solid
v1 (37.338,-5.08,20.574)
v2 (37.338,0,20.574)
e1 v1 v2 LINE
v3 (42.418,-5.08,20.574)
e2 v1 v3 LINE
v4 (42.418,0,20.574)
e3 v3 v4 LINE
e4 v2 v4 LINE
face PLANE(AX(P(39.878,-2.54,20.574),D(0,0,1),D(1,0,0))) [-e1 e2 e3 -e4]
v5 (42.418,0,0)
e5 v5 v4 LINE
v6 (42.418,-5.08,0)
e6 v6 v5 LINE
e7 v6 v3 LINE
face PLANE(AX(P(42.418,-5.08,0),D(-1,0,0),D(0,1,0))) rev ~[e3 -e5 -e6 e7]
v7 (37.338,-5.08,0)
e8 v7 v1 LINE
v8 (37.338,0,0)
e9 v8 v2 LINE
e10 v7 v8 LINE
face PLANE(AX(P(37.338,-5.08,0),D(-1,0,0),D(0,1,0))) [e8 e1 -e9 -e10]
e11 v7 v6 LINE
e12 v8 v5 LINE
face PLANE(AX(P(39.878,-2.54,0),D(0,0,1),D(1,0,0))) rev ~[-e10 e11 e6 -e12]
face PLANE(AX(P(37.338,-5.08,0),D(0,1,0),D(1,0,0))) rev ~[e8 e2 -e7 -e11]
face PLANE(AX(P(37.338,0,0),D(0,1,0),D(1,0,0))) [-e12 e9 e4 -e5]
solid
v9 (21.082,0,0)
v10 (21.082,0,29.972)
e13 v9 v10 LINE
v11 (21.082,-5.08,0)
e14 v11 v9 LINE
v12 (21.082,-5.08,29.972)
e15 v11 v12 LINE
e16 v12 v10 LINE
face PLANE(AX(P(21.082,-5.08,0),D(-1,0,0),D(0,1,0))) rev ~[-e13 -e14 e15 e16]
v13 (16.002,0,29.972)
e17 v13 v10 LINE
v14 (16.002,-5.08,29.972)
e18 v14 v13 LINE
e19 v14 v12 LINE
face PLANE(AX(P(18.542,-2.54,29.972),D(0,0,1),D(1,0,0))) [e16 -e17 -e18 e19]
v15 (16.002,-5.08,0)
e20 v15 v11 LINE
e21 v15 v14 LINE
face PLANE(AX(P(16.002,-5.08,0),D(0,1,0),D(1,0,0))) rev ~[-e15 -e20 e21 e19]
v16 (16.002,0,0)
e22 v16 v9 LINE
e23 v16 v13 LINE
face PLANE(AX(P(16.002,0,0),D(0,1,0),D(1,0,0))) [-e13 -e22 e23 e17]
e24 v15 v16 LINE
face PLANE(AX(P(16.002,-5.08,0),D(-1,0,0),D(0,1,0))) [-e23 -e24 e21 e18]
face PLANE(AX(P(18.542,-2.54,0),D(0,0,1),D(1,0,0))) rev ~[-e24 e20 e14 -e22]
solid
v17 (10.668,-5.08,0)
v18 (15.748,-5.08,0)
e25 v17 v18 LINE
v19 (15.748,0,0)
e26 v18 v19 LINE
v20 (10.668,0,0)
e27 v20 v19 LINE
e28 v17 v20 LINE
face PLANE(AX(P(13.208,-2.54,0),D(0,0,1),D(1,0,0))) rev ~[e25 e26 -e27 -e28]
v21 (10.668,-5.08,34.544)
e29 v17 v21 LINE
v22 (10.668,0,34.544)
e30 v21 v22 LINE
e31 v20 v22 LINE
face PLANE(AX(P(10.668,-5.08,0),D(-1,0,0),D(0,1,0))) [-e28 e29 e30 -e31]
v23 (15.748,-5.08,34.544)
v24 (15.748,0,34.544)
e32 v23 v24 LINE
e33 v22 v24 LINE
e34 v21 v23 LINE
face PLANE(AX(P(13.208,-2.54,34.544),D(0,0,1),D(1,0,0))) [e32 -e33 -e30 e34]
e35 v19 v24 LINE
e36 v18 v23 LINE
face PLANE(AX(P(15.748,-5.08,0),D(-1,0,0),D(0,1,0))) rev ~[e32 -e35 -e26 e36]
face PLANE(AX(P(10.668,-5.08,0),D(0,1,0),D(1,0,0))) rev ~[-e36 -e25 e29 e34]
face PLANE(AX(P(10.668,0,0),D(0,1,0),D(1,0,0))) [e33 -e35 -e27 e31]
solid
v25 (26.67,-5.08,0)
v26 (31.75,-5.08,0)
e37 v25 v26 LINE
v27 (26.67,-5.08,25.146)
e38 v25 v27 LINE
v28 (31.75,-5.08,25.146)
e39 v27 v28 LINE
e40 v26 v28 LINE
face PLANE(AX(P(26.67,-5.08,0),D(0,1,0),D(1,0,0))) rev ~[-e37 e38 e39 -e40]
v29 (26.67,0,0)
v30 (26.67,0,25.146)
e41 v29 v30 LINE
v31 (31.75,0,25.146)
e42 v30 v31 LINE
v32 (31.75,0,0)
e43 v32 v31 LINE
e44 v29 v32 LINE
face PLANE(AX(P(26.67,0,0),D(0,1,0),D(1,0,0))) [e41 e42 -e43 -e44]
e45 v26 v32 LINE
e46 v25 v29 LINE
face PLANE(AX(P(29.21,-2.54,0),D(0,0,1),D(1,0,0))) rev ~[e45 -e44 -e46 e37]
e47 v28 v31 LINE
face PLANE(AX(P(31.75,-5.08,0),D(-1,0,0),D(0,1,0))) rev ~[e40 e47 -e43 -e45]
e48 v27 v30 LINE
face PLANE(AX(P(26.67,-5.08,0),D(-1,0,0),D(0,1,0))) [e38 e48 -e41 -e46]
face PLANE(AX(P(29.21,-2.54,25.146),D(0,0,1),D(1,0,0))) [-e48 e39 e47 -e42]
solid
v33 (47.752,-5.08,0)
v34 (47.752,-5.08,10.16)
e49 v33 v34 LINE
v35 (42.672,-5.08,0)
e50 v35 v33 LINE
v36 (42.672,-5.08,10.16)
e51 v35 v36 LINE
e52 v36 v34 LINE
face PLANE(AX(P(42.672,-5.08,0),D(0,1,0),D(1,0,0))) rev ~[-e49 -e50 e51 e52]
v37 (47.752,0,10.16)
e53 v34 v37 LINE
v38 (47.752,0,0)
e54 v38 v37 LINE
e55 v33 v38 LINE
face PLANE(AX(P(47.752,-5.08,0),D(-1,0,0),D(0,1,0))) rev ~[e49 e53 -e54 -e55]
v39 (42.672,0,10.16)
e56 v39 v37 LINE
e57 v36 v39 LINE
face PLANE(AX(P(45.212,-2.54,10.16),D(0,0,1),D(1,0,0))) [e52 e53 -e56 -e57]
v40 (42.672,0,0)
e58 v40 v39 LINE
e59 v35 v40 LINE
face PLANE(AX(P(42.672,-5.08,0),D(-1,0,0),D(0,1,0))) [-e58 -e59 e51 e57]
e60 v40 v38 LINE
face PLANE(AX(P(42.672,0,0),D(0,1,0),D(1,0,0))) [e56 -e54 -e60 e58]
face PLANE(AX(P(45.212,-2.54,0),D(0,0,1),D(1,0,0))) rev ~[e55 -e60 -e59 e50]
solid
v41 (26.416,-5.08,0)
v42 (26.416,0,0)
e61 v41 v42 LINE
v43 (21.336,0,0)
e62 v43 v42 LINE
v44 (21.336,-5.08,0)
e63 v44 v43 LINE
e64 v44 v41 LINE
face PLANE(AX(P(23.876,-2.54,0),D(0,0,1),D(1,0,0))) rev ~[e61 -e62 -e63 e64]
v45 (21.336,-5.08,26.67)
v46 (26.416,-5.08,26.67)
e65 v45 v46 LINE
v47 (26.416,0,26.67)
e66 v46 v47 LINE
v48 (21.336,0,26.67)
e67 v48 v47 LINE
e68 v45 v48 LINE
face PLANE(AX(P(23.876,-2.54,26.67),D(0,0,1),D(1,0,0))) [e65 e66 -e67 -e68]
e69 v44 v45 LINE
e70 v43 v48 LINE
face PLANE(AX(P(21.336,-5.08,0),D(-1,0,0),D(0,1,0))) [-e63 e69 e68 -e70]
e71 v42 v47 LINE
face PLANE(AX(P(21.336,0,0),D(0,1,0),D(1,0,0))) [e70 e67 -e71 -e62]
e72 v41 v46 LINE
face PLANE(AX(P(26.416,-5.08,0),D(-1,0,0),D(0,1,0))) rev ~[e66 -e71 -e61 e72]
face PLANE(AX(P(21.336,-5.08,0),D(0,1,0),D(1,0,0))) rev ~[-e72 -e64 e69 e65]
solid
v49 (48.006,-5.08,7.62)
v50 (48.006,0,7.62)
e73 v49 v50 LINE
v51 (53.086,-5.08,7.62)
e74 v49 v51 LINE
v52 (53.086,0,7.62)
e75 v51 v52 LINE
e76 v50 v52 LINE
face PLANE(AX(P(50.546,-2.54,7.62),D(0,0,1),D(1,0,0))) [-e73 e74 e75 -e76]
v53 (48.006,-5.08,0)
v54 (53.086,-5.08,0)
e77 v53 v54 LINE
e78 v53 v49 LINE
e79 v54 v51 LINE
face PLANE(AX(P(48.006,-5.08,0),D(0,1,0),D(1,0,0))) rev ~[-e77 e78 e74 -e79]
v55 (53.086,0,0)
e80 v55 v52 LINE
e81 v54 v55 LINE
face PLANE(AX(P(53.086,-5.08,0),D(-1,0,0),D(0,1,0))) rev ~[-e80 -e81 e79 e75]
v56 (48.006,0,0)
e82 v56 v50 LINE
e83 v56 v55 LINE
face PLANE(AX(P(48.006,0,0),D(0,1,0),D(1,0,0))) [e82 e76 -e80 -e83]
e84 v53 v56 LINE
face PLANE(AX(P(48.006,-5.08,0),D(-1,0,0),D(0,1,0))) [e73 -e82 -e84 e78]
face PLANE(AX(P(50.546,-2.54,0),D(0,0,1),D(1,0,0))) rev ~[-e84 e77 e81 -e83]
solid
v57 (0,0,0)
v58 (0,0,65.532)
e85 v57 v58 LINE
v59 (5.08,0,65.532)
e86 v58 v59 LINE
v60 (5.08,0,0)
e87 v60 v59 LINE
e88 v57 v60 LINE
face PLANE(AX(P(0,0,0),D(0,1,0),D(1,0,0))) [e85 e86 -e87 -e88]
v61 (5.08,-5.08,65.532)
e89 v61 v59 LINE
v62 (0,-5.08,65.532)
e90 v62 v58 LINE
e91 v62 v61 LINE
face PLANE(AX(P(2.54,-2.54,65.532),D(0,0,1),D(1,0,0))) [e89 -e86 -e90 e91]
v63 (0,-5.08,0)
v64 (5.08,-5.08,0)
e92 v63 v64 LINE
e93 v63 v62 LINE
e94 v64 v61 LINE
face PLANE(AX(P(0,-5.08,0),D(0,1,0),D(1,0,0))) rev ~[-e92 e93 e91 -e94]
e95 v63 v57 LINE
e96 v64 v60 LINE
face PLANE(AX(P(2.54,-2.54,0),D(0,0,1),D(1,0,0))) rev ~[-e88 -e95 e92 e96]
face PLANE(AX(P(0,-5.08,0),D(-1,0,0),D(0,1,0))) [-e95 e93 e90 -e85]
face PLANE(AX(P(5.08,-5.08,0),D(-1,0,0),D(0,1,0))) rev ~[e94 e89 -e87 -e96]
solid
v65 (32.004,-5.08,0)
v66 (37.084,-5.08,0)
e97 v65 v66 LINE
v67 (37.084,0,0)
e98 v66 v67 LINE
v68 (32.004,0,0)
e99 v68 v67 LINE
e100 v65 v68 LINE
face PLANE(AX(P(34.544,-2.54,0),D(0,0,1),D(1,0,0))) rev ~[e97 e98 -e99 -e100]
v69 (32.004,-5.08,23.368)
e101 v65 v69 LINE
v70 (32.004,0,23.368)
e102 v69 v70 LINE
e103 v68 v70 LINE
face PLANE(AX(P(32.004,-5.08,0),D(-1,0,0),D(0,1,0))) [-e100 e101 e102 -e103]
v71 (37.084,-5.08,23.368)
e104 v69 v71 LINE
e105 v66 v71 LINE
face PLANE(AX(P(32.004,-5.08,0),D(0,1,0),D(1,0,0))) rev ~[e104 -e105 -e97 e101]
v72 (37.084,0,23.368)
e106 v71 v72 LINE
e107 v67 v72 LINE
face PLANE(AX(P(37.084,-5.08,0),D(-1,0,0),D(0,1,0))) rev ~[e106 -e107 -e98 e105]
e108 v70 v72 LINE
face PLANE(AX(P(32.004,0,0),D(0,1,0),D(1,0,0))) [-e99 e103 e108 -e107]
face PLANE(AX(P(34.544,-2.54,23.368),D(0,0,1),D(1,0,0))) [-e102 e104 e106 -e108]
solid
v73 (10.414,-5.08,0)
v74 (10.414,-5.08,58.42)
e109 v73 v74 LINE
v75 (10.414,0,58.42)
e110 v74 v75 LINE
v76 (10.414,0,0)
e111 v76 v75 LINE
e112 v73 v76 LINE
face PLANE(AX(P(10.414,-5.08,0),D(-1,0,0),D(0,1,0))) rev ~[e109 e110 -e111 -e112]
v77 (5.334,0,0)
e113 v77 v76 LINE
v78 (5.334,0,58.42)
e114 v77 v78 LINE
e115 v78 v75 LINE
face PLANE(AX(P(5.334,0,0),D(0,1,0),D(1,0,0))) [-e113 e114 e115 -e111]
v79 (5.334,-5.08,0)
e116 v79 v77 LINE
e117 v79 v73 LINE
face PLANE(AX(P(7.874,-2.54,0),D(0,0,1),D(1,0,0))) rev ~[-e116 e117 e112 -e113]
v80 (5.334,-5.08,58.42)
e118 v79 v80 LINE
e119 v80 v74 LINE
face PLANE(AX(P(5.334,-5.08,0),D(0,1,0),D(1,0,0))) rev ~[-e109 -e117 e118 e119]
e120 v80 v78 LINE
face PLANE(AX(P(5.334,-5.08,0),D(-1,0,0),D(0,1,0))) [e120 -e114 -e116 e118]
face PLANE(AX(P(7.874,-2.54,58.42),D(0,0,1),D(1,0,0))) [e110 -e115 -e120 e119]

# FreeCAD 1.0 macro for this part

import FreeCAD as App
import Part
import Sketcher
from FreeCAD import Vector
Q = App.Units.Quantity


def add_polygon(sketch, points):
    """Adds a closed chain of lines whose ends are joined by coincident constraints."""
    first, n = sketch.GeometryCount, len(points)
    for a, b in zip(points, points[1:] + points[:1]):
        sketch.addGeometry(Part.LineSegment(App.Vector(*a, 0), App.Vector(*b, 0)), False)
    for i in range(n):
        sketch.addConstraint(Sketcher.Constraint("Coincident", first + i, 2, first + (i + 1) % n, 1))

doc = App.newDocument("Part")
body = doc.addObject("PartDesign::Body", "Body")

sketch1 = body.newObject("Sketcher::SketchObject", "Sketch")
sketch1.AttachmentSupport = (doc.getObject("XY_Plane"), [""])
sketch1.MapMode = "FlatFace"
add_polygon(sketch1, [(0, 0), (0, -5), (5, -5), (5, 0)])
sketch1.addConstraint([
    Sketcher.Constraint("Vertical", 0),
    Sketcher.Constraint("Horizontal", 1),
    Sketcher.Constraint("Vertical", 2),
    Sketcher.Constraint("Horizontal", 3),
    Sketcher.Constraint("Coincident", 3, 2, -1, 1),
    Sketcher.Constraint("Equal", 3, 0),
    Sketcher.Constraint("DistanceX", 1, 1, 1, 2, Q("0.2 in")),
])
pad1 = body.newObject("PartDesign::Pad", "Pad")
pad1.Profile = sketch1
pad1.Length = Q("2.58 in")
body2 = doc.addObject("PartDesign::Body", "Body001")

sketch2 = body2.newObject("Sketcher::SketchObject", "Sketch001")
sketch2.AttachmentSupport = (doc.getObject("XY_Plane001"), [""])
sketch2.MapMode = "FlatFace"
add_polygon(sketch2, [(5, 0), (5, -5), (10, -5), (10, 0)])
sketch2.addConstraint([
    Sketcher.Constraint("Vertical", 0),
    Sketcher.Constraint("Horizontal", 1),
    Sketcher.Constraint("Vertical", 2),
    Sketcher.Constraint("Horizontal", 3),
    Sketcher.Constraint("PointOnObject", 2, 2, -1),
    Sketcher.Constraint("Equal", 3, 0),
    Sketcher.Constraint("DistanceX", 1, 1, 1, 2, Q("0.2 in")),
    Sketcher.Constraint("DistanceX", -1, 1, 0, 2, Q("0.21 in")),
])
pad2 = body2.newObject("PartDesign::Pad", "Pad001")
pad2.Profile = sketch2
pad2.Length = Q("2.3 in")
body3 = doc.addObject("PartDesign::Body", "Body002")

sketch3 = body3.newObject("Sketcher::SketchObject", "Sketch002")
sketch3.AttachmentSupport = (doc.getObject("XY_Plane002"), [""])
sketch3.MapMode = "FlatFace"
add_polygon(sketch3, [(11, 0), (11, -5), (16, -5), (16, 0)])
sketch3.addConstraint([
    Sketcher.Constraint("Vertical", 0),
    Sketcher.Constraint("Horizontal", 1),
    Sketcher.Constraint("Vertical", 2),
    Sketcher.Constraint("Horizontal", 3),
    Sketcher.Constraint("PointOnObject", 2, 2, -1),
    Sketcher.Constraint("Equal", 3, 0),
    Sketcher.Constraint("DistanceX", 1, 1, 1, 2, Q("0.2 in")),
    Sketcher.Constraint("DistanceX", -1, 1, 0, 2, Q("0.42 in")),
])
pad3 = body3.newObject("PartDesign::Pad", "Pad002")
pad3.Profile = sketch3
pad3.Length = Q("1.36 in")
body4 = doc.addObject("PartDesign::Body", "Body003")

sketch4 = body4.newObject("Sketcher::SketchObject", "Sketch003")
sketch4.AttachmentSupport = (doc.getObject("XY_Plane003"), [""])
sketch4.MapMode = "FlatFace"
add_polygon(sketch4, [(16, 0), (16, -5), (21, -5), (21, 0)])
sketch4.addConstraint([
    Sketcher.Constraint("Vertical", 0),
    Sketcher.Constraint("Horizontal", 1),
    Sketcher.Constraint("Vertical", 2),
    Sketcher.Constraint("Horizontal", 3),
    Sketcher.Constraint("PointOnObject", 2, 2, -1),
    Sketcher.Constraint("Equal", 3, 0),
    Sketcher.Constraint("DistanceX", 1, 1, 1, 2, Q("0.2 in")),
    Sketcher.Constraint("DistanceX", -1, 1, 0, 2, Q("0.63 in")),
])
pad4 = body4.newObject("PartDesign::Pad", "Pad003")
pad4.Profile = sketch4
pad4.Length = Q("1.18 in")
body5 = doc.addObject("PartDesign::Body", "Body004")

sketch5 = body5.newObject("Sketcher::SketchObject", "Sketch004")
sketch5.AttachmentSupport = (doc.getObject("XY_Plane004"), [""])
sketch5.MapMode = "FlatFace"
add_polygon(sketch5, [(21, 0), (21, -5), (26, -5), (26, 0)])
sketch5.addConstraint([
    Sketcher.Constraint("Vertical", 0),
    Sketcher.Constraint("Horizontal", 1),
    Sketcher.Constraint("Vertical", 2),
    Sketcher.Constraint("Horizontal", 3),
    Sketcher.Constraint("PointOnObject", 2, 2, -1),
    Sketcher.Constraint("Equal", 3, 0),
    Sketcher.Constraint("DistanceX", 1, 1, 1, 2, Q("0.2 in")),
    Sketcher.Constraint("DistanceX", -1, 1, 0, 2, Q("0.84 in")),
])
pad5 = body5.newObject("PartDesign::Pad", "Pad004")
pad5.Profile = sketch5
pad5.Length = Q("1.05 in")
body6 = doc.addObject("PartDesign::Body", "Body005")

sketch6 = body6.newObject("Sketcher::SketchObject", "Sketch005")
sketch6.AttachmentSupport = (doc.getObject("XY_Plane005"), [""])
sketch6.MapMode = "FlatFace"
add_polygon(sketch6, [(27, 0), (27, -5), (32, -5), (32, 0)])
sketch6.addConstraint([
    Sketcher.Constraint("Vertical", 0),
    Sketcher.Constraint("Horizontal", 1),
    Sketcher.Constraint("Vertical", 2),
    Sketcher.Constraint("Horizontal", 3),
    Sketcher.Constraint("PointOnObject", 2, 2, -1),
    Sketcher.Constraint("Equal", 3, 0),
    Sketcher.Constraint("DistanceX", 1, 1, 1, 2, Q("0.2 in")),
    Sketcher.Constraint("DistanceX", -1, 1, 0, 2, Q("1.05 in")),
])
pad6 = body6.newObject("PartDesign::Pad", "Pad005")
pad6.Profile = sketch6
pad6.Length = Q("0.99 in")
body7 = doc.addObject("PartDesign::Body", "Body006")

sketch7 = body7.newObject("Sketcher::SketchObject", "Sketch006")
sketch7.AttachmentSupport = (doc.getObject("XY_Plane006"), [""])
sketch7.MapMode = "FlatFace"
add_polygon(sketch7, [(32, 0), (32, -5), (37, -5), (37, 0)])
sketch7.addConstraint([
    Sketcher.Constraint("Vertical", 0),
    Sketcher.Constraint("Horizontal", 1),
    Sketcher.Constraint("Vertical", 2),
    Sketcher.Constraint("Horizontal", 3),
    Sketcher.Constraint("PointOnObject", 2, 2, -1),
    Sketcher.Constraint("Equal", 3, 0),
    Sketcher.Constraint("DistanceX", 1, 1, 1, 2, Q("0.2 in")),
    Sketcher.Constraint("DistanceX", -1, 1, 0, 2, Q("1.26 in")),
])
pad7 = body7.newObject("PartDesign::Pad", "Pad006")
pad7.Profile = sketch7
pad7.Length = Q("0.92 in")
body8 = doc.addObject("PartDesign::Body", "Body007")

sketch8 = body8.newObject("Sketcher::SketchObject", "Sketch007")
sketch8.AttachmentSupport = (doc.getObject("XY_Plane007"), [""])
sketch8.MapMode = "FlatFace"
add_polygon(sketch8, [(37, 0), (37, -5), (42, -5), (42, 0)])
sketch8.addConstraint([
    Sketcher.Constraint("Vertical", 0),
    Sketcher.Constraint("Horizontal", 1),
    Sketcher.Constraint("Vertical", 2),
    Sketcher.Constraint("Horizontal", 3),
    Sketcher.Constraint("PointOnObject", 2, 2, -1),
    Sketcher.Constraint("Equal", 3, 0),
    Sketcher.Constraint("DistanceX", 1, 1, 1, 2, Q("0.2 in")),
    Sketcher.Constraint("DistanceX", -1, 1, 0, 2, Q("1.47 in")),
])
pad8 = body8.newObject("PartDesign::Pad", "Pad007")
pad8.Profile = sketch8
pad8.Length = Q("0.81 in")
body9 = doc.addObject("PartDesign::Body", "Body008")

sketch9 = body9.newObject("Sketcher::SketchObject", "Sketch008")
sketch9.AttachmentSupport = (doc.getObject("XY_Plane008"), [""])
sketch9.MapMode = "FlatFace"
add_polygon(sketch9, [(43, 0), (43, -5), (48, -5), (48, 0)])
sketch9.addConstraint([
    Sketcher.Constraint("Vertical", 0),
    Sketcher.Constraint("Horizontal", 1),
    Sketcher.Constraint("Vertical", 2),
    Sketcher.Constraint("Horizontal", 3),
    Sketcher.Constraint("PointOnObject", 2, 2, -1),
    Sketcher.Constraint("Equal", 3, 0),
    Sketcher.Constraint("DistanceX", 1, 1, 1, 2, Q("0.2 in")),
    Sketcher.Constraint("DistanceX", -1, 1, 0, 2, Q("1.68 in")),
])
pad9 = body9.newObject("PartDesign::Pad", "Pad008")
pad9.Profile = sketch9
pad9.Length = Q("0.4 in")
body10 = doc.addObject("PartDesign::Body", "Body009")

sketch10 = body10.newObject("Sketcher::SketchObject", "Sketch009")
sketch10.AttachmentSupport = (doc.getObject("XY_Plane009"), [""])
sketch10.MapMode = "FlatFace"
add_polygon(sketch10, [(48, 0), (48, -5), (53, -5), (53, 0)])
sketch10.addConstraint([
    Sketcher.Constraint("Vertical", 0),
    Sketcher.Constraint("Horizontal", 1),
    Sketcher.Constraint("Vertical", 2),
    Sketcher.Constraint("Horizontal", 3),
    Sketcher.Constraint("PointOnObject", 2, 2, -1),
    Sketcher.Constraint("Equal", 3, 0),
    Sketcher.Constraint("DistanceX", 1, 1, 1, 2, Q("0.2 in")),
    Sketcher.Constraint("DistanceX", -1, 1, 0, 2, Q("1.89 in")),
])
pad10 = body10.newObject("PartDesign::Pad", "Pad009")
pad10.Profile = sketch10
pad10.Length = Q("0.3 in")

doc.recompute()
